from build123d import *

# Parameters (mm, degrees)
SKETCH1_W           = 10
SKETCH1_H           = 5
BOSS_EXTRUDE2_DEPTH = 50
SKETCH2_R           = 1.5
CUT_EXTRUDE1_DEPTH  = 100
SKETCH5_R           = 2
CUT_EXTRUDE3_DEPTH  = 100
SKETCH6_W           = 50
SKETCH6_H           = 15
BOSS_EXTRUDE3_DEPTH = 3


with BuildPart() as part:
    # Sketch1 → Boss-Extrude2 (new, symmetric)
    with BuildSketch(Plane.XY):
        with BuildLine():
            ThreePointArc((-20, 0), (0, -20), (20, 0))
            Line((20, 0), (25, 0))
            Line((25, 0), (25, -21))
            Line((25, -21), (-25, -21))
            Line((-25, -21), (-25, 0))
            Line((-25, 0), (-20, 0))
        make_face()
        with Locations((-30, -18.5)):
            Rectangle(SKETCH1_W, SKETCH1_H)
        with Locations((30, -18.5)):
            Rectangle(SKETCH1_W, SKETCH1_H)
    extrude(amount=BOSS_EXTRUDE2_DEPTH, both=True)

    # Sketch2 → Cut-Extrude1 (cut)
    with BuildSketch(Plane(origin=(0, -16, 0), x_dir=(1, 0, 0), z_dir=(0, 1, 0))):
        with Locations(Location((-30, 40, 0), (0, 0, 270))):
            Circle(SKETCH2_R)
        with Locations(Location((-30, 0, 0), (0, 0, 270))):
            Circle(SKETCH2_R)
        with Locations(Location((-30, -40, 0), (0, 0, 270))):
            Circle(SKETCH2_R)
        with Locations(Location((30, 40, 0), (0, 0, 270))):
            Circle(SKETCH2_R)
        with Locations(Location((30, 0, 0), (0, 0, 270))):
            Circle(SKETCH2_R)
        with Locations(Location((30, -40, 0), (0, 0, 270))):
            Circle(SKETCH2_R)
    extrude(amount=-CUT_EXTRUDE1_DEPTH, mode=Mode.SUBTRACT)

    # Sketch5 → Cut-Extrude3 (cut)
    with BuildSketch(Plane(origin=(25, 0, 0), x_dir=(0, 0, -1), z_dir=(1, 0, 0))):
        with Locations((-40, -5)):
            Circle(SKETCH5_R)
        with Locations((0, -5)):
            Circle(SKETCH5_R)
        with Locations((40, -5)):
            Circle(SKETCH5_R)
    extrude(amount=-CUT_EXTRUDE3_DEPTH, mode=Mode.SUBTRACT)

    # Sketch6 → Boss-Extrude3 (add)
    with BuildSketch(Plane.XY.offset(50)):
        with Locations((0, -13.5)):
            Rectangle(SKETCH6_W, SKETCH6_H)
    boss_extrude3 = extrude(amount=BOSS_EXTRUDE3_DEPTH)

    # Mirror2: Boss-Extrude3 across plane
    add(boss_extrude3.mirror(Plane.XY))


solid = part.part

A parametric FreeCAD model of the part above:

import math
import FreeCAD as App
import Part
import Sketcher


def add_polygon(sketch, points):
    """Adds a closed chain of lines whose ends are joined by coincident constraints."""
    first, n = sketch.GeometryCount, len(points)
    for a, b in zip(points, points[1:] + points[:1]):
        sketch.addGeometry(Part.LineSegment(App.Vector(*a, 0), App.Vector(*b, 0)), False)
    for i in range(n):
        sketch.addConstraint(Sketcher.Constraint("Coincident", first + i, 2, first + (i + 1) % n, 1))

doc = App.newDocument("Part")
body = doc.addObject("PartDesign::Body", "Body")

# Sketch on XY plane
sketch1 = doc.addObject("Sketcher::SketchObject", "Sketch")
body.addObject(sketch1)
sketch1.AttachmentSupport = (doc.XY_Plane, [""])
sketch1.MapMode = "FlatFace"
sketch1.addGeometry([
    Part.ArcOfCircle(Part.Circle(App.Vector(0, 0, 0), App.Vector(0, 0, 1), 20), math.radians(180), math.radians(360)),  # 0
    Part.LineSegment(App.Vector(-20, 0, 0), App.Vector(-25, 0, 0)),  # 1
    Part.LineSegment(App.Vector(-25, 0, 0), App.Vector(-25, -16, 0)),  # 2
    Part.LineSegment(App.Vector(-25, -16, 0), App.Vector(-35, -16, 0)),  # 3
    Part.LineSegment(App.Vector(-35, -16, 0), App.Vector(-35, -21, 0)),  # 4
    Part.LineSegment(App.Vector(-35, -21, 0), App.Vector(35, -21, 0)),  # 5
    Part.LineSegment(App.Vector(35, -21, 0), App.Vector(35, -16, 0)),  # 6
    Part.LineSegment(App.Vector(35, -16, 0), App.Vector(25, -16, 0)),  # 7
    Part.LineSegment(App.Vector(25, -16, 0), App.Vector(25, 0, 0)),  # 8
    Part.LineSegment(App.Vector(25, 0, 0), App.Vector(20, 0, 0)),  # 9
], False)
sketch1.addConstraint([
    Sketcher.Constraint("Coincident", 0, 1, 1, 1),
    Sketcher.Constraint("Coincident", 1, 2, 2, 1),
    Sketcher.Constraint("Coincident", 2, 2, 3, 1),
    Sketcher.Constraint("Coincident", 3, 2, 4, 1),
    Sketcher.Constraint("Coincident", 4, 2, 5, 1),
    Sketcher.Constraint("Coincident", 5, 2, 6, 1),
    Sketcher.Constraint("Coincident", 6, 2, 7, 1),
    Sketcher.Constraint("Coincident", 7, 2, 8, 1),
    Sketcher.Constraint("Coincident", 8, 2, 9, 1),
    Sketcher.Constraint("Coincident", 9, 2, 0, 2),
    Sketcher.Constraint("Horizontal", 1),
    Sketcher.Constraint("Vertical", 2),
    Sketcher.Constraint("Horizontal", 3),
    Sketcher.Constraint("Vertical", 4),
    Sketcher.Constraint("Horizontal", 5),
    Sketcher.Constraint("Vertical", 6),
    Sketcher.Constraint("Horizontal", 7),
    Sketcher.Constraint("Vertical", 8),
    Sketcher.Constraint("Horizontal", 9),
    Sketcher.Constraint("Coincident", 0, 3, -1, 1),
    Sketcher.Constraint("Symmetric", 1, 2, 8, 2, -1, 1),
    Sketcher.Constraint("Symmetric", 3, 2, 6, 2, -2),
    Sketcher.Constraint("PointOnObject", 0, 1, -1),
    Sketcher.Constraint("Equal", 9, 4),
    Sketcher.Constraint("Radius", 0, 20.0),
    Sketcher.Constraint("DistanceX", 1, 2, 1, 1, 5.0),
    Sketcher.Constraint("DistanceX", 3, 2, 3, 1, 10.0),
    Sketcher.Constraint("DistanceY", 2, 2, 2, 1, 16.0),
])
pad1 = doc.addObject("PartDesign::Pad", "Pad")
body.addObject(pad1)
pad1.Profile = sketch1
pad1.Length = 100
pad1.Midplane = True

# Sketch on XZ plane
sketch2 = doc.addObject("Sketcher::SketchObject", "Sketch001")
body.addObject(sketch2)
sketch2.AttachmentSupport = (doc.XZ_Plane, [""])
sketch2.MapMode = "FlatFace"
sketch2.AttachmentOffset = App.Placement(App.Vector(0, 0, 16), App.Rotation())
sketch2.addGeometry([
    Part.Circle(App.Vector(-30, -40, 0), App.Vector(0, 0, 1), 1.5),  # 0
    Part.Circle(App.Vector(-30, 0, 0), App.Vector(0, 0, 1), 1.5),  # 1
    Part.Circle(App.Vector(-30, 40, 0), App.Vector(0, 0, 1), 1.5),  # 2
    Part.Circle(App.Vector(30, -40, 0), App.Vector(0, 0, 1), 1.5),  # 3
    Part.Circle(App.Vector(30, 0, 0), App.Vector(0, 0, 1), 1.5),  # 4
    Part.Circle(App.Vector(30, 40, 0), App.Vector(0, 0, 1), 1.5),  # 5
], False)
sketch2.addConstraint([
    Sketcher.Constraint("Equal", 0, 1),
    Sketcher.Constraint("Equal", 1, 2),
    Sketcher.Constraint("Equal", 2, 3),
    Sketcher.Constraint("Equal", 3, 4),
    Sketcher.Constraint("Equal", 4, 5),
    Sketcher.Constraint("Symmetric", 2, 3, 3, 3, -1, 1),
    Sketcher.Constraint("Symmetric", 1, 3, 4, 3, -1, 1),
    Sketcher.Constraint("Symmetric", 0, 3, 5, 3, -1, 1),
    Sketcher.Constraint("Symmetric", 0, 3, 3, 3, -2),
    Sketcher.Constraint("PointOnObject", 1, 3, -1),
    Sketcher.Constraint("Vertical", 0, 3, 1, 3),
    Sketcher.Constraint("Diameter", 0, 3.0),
    Sketcher.Constraint("DistanceX", 0, 3, -1, 1, 30.0),
    Sketcher.Constraint("DistanceY", 0, 3, -1, 1, 40.0),
])
pocket1 = doc.addObject("PartDesign::Pocket", "Pocket")
body.addObject(pocket1)
pocket1.Profile = sketch2
pocket1.Length = 100
pocket1.Reversed = True

# Sketch on YZ plane
sketch3 = doc.addObject("Sketcher::SketchObject", "Sketch002")
body.addObject(sketch3)
sketch3.AttachmentSupport = (doc.YZ_Plane, [""])
sketch3.MapMode = "FlatFace"
sketch3.AttachmentOffset = App.Placement(App.Vector(0, 0, 25), App.Rotation())
sketch3.addGeometry([
    Part.Circle(App.Vector(-5, 40, 0), App.Vector(0, 0, 1), 2),
    Part.Circle(App.Vector(-5, 0, 0), App.Vector(0, 0, 1), 2),
    Part.Circle(App.Vector(-5, -40, 0), App.Vector(0, 0, 1), 2),
], False)
sketch3.addConstraint([
    Sketcher.Constraint("Equal", 0, 1),
    Sketcher.Constraint("Equal", 1, 2),
    Sketcher.Constraint("Symmetric", 0, 3, 2, 3, -1),
    Sketcher.Constraint("PointOnObject", 1, 3, -1),
    Sketcher.Constraint("Vertical", 0, 3, 1, 3),
    Sketcher.Constraint("Diameter", 0, 4.0),
    Sketcher.Constraint("DistanceX", 0, 3, -1, 1, 5.0),
    Sketcher.Constraint("DistanceY", -1, 1, 0, 3, 40.0),
])
pocket2 = doc.addObject("PartDesign::Pocket", "Pocket001")
body.addObject(pocket2)
pocket2.Profile = sketch3
pocket2.Length = 100

# Sketch on XY plane
sketch4 = doc.addObject("Sketcher::SketchObject", "Sketch003")
body.addObject(sketch4)
sketch4.AttachmentSupport = (doc.XY_Plane, [""])
sketch4.MapMode = "FlatFace"
sketch4.AttachmentOffset = App.Placement(App.Vector(0, 0, 50), App.Rotation())
add_polygon(sketch4, [(-25, -6), (-25, -21), (25, -21), (25, -6)])  # lines 0-3
sketch4.addConstraint([
    Sketcher.Constraint("Vertical", 0),
    Sketcher.Constraint("Horizontal", 1),
    Sketcher.Constraint("Vertical", 2),
    Sketcher.Constraint("Horizontal", 3),
    Sketcher.Constraint("DistanceX", 1, 1, 1, 2, 50.0),
    Sketcher.Constraint("DistanceY", 0, 2, 0, 1, 15.0),
    Sketcher.Constraint("DistanceX", 0, 2, -1, 1, 25.0),
    Sketcher.Constraint("DistanceY", 0, 2, -1, 1, 21.0),
])
pad2 = doc.addObject("PartDesign::Pad", "Pad001")
body.addObject(pad2)
pad2.Profile = sketch4
pad2.Length = 3
doc.recompute()

mirrored = doc.addObject("PartDesign::Mirrored", "Mirrored")
body.addObject(mirrored)
mirrored.Originals = [pad2]
mirrored.MirrorPlane = (doc.XY_Plane, [""])
body.Tip = mirrored

doc.recompute()
